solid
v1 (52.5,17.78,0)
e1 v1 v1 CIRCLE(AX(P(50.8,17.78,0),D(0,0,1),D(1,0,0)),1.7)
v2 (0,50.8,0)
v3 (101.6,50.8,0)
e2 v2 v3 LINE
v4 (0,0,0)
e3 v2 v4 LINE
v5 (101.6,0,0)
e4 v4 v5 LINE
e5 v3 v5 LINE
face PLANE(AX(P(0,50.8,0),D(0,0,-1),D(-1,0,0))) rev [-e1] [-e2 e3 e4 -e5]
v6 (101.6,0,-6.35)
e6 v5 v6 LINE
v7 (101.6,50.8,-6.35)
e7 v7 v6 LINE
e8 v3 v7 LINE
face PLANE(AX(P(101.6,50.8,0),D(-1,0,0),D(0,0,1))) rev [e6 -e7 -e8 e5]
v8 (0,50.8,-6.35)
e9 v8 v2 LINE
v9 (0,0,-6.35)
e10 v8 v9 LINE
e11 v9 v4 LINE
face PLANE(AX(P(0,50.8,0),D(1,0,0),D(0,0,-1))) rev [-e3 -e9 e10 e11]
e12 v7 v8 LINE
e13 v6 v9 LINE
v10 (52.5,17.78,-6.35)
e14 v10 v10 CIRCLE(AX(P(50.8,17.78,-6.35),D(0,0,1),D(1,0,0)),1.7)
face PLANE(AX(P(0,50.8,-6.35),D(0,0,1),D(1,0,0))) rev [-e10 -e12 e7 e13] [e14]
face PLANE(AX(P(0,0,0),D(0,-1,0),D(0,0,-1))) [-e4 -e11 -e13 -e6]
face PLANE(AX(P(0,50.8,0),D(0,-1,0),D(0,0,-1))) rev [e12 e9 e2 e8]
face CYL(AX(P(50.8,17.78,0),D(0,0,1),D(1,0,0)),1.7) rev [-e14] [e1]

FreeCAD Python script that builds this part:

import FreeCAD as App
import Part
import Sketcher
from FreeCAD import Vector
Q = App.Units.Quantity


def add_polygon(sketch, points):
    """Adds a closed chain of lines whose ends are joined by coincident constraints."""
    first, n = sketch.GeometryCount, len(points)
    for a, b in zip(points, points[1:] + points[:1]):
        sketch.addGeometry(Part.LineSegment(App.Vector(*a, 0), App.Vector(*b, 0)), False)
    for i in range(n):
        sketch.addConstraint(Sketcher.Constraint("Coincident", first + i, 2, first + (i + 1) % n, 1))

doc = App.newDocument("Part")
body = doc.addObject("PartDesign::Body", "Body")

sketch1 = body.newObject("Sketcher::SketchObject", "Sketch")
sketch1.AttachmentSupport = (doc.getObject("XZ_Plane"), [""])
sketch1.MapMode = "FlatFace"
add_polygon(sketch1, [(0, -6), (0, 0), (102, 0), (102, -6)])
sketch1.addConstraint(Sketcher.Constraint("Vertical", 0))
sketch1.addConstraint(Sketcher.Constraint("Horizontal", 1))
sketch1.addConstraint(Sketcher.Constraint("Vertical", 2))
sketch1.addConstraint(Sketcher.Constraint("Horizontal", 3))
sketch1.addConstraint(Sketcher.Constraint("Coincident", 0, 2, -1, 1))
sketch1.addConstraint(Sketcher.Constraint("DistanceX", 1, 1, 1, 2, Q("4 in")))
sketch1.addConstraint(Sketcher.Constraint("DistanceY", 0, 1, 0, 2, Q("0.25 in")))
pad1 = body.newObject("PartDesign::Pad", "Pad")
pad1.Profile = sketch1
pad1.Length = Q("2 in")
pad1.Reversed = True

sketch2 = body.newObject("Sketcher::SketchObject", "Sketch001")
sketch2.AttachmentSupport = (doc.getObject("XY_Plane"), [""])
sketch2.MapMode = "FlatFace"
sketch2.addGeometry(Part.Circle(Vector(50.8, 17.8, 0), Vector(0, 0, 1), 1.7), False)
sketch2.addConstraint(Sketcher.Constraint("DistanceX", -1, 1, 0, 3, Q("2 in")))
sketch2.addConstraint(Sketcher.Constraint("DistanceY", -1, 1, 0, 3, Q("0.7 in")))
sketch2.addConstraint(Sketcher.Constraint("Diameter", 0, Q("3.4 mm")))
doc.recompute()
hole = body.newObject("PartDesign::Hole", "Hole")
hole.Profile = sketch2
hole.ThreadType = "None"
hole.Diameter = 3.4
hole.DepthType = "ThroughAll"

doc.recompute()
